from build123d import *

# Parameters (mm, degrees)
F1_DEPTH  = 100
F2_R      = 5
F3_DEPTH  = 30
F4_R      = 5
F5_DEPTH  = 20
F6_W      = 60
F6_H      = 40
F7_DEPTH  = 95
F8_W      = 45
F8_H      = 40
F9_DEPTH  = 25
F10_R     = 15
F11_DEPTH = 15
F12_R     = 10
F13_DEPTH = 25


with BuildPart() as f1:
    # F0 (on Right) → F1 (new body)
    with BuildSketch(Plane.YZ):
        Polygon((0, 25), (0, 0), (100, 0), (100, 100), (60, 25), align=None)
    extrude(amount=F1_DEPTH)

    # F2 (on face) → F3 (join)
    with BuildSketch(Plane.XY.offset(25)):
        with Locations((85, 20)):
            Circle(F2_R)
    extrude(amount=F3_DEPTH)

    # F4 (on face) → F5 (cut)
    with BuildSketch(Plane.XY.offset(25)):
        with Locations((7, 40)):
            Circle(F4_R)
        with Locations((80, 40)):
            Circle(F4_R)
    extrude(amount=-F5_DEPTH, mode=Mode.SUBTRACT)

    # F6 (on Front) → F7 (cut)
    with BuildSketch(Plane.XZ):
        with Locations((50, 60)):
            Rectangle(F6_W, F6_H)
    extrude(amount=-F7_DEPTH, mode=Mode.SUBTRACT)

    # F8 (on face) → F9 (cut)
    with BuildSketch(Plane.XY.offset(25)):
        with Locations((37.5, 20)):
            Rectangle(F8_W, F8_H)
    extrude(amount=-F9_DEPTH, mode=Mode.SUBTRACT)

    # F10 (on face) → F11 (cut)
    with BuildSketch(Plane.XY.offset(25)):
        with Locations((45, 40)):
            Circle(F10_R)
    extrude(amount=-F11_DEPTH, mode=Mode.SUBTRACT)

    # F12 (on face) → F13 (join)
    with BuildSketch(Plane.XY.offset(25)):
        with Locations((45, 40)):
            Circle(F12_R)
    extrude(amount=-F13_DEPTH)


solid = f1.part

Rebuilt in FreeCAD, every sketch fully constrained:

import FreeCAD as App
import Part
import Sketcher
from FreeCAD import Vector


def add_polygon(sketch, points):
    """Adds a closed chain of lines whose ends are joined by coincident constraints."""
    first, n = sketch.GeometryCount, len(points)
    for a, b in zip(points, points[1:] + points[:1]):
        sketch.addGeometry(Part.LineSegment(App.Vector(*a, 0), App.Vector(*b, 0)), False)
    for i in range(n):
        sketch.addConstraint(Sketcher.Constraint("Coincident", first + i, 2, first + (i + 1) % n, 1))

doc = App.newDocument("Part")
body = doc.addObject("PartDesign::Body", "Body")

sketch1 = doc.addObject("Sketcher::SketchObject", "Sketch")
body.addObject(sketch1)
sketch1.AttachmentSupport = (doc.YZ_Plane, [""])
sketch1.MapMode = "FlatFace"
add_polygon(sketch1, [(0, 25), (0, 0), (100, 0), (100, 100), (60, 25)])
sketch1.addConstraint([
    Sketcher.Constraint("Vertical", 0),
    Sketcher.Constraint("Horizontal", 1),
    Sketcher.Constraint("Vertical", 2),
    Sketcher.Constraint("Horizontal", 4),
    Sketcher.Constraint("Coincident", 0, 2, -1, 1),
    Sketcher.Constraint("Equal", 1, 2),
    Sketcher.Constraint("DistanceX", 1, 1, 1, 2, 100.0),
    Sketcher.Constraint("DistanceX", 4, 2, 4, 1, 60.0),
    Sketcher.Constraint("DistanceY", 0, 2, 0, 1, 25.0),
])
pad1 = doc.addObject("PartDesign::Pad", "Pad")
body.addObject(pad1)
pad1.Profile = sketch1
pad1.Length = 100

sketch2 = doc.addObject("Sketcher::SketchObject", "Sketch001")
body.addObject(sketch2)
sketch2.AttachmentSupport = (doc.XY_Plane, [""])
sketch2.MapMode = "FlatFace"
sketch2.AttachmentOffset = App.Placement(Vector(0, 0, 25), App.Rotation())
sketch2.addGeometry(Part.Circle(Vector(85, 20, 0), Vector(0, 0, 1), 5), False)
sketch2.addConstraint([
    Sketcher.Constraint("Diameter", 0, 10.0),
    Sketcher.Constraint("DistanceX", -1, 1, 0, 3, 85.0),
    Sketcher.Constraint("DistanceY", -1, 1, 0, 3, 20.0),
])
pad2 = doc.addObject("PartDesign::Pad", "Pad001")
body.addObject(pad2)
pad2.Profile = sketch2
pad2.Length = 30

sketch3 = doc.addObject("Sketcher::SketchObject", "Sketch002")
body.addObject(sketch3)
sketch3.AttachmentSupport = (doc.XY_Plane, [""])
sketch3.MapMode = "FlatFace"
sketch3.AttachmentOffset = App.Placement(Vector(0, 0, 25), App.Rotation())
sketch3.addGeometry([
    Part.Circle(Vector(7, 40, 0), Vector(0, 0, 1), 5),
    Part.Circle(Vector(80, 40, 0), Vector(0, 0, 1), 5),
], False)
sketch3.addConstraint([
    Sketcher.Constraint("Equal", 0, 1),
    Sketcher.Constraint("Horizontal", 0, 3, 1, 3),
    Sketcher.Constraint("Diameter", 0, 10.0),
    Sketcher.Constraint("DistanceX", -1, 1, 0, 3, 7.0),
    Sketcher.Constraint("DistanceY", -1, 1, 0, 3, 40.0),
    Sketcher.Constraint("DistanceX", -1, 1, 1, 3, 80.0),
])
pocket1 = doc.addObject("PartDesign::Pocket", "Pocket")
body.addObject(pocket1)
pocket1.Profile = sketch3
pocket1.Length = 20

sketch4 = doc.addObject("Sketcher::SketchObject", "Sketch003")
body.addObject(sketch4)
sketch4.AttachmentSupport = (doc.XZ_Plane, [""])
sketch4.MapMode = "FlatFace"
add_polygon(sketch4, [(20, 80), (20, 40), (80, 40), (80, 80)])
sketch4.addConstraint([
    Sketcher.Constraint("Vertical", 0),
    Sketcher.Constraint("Horizontal", 1),
    Sketcher.Constraint("Vertical", 2),
    Sketcher.Constraint("Horizontal", 3),
    Sketcher.Constraint("DistanceX", 1, 1, 1, 2, 60.0),
    Sketcher.Constraint("DistanceY", 0, 2, 0, 1, 40.0),
    Sketcher.Constraint("DistanceX", -1, 1, 0, 2, 20.0),
    Sketcher.Constraint("DistanceY", -1, 1, 0, 2, 40.0),
])
pocket2 = doc.addObject("PartDesign::Pocket", "Pocket001")
body.addObject(pocket2)
pocket2.Profile = sketch4
pocket2.Length = 95

sketch5 = doc.addObject("Sketcher::SketchObject", "Sketch004")
body.addObject(sketch5)
sketch5.AttachmentSupport = (doc.XY_Plane, [""])
sketch5.MapMode = "FlatFace"
sketch5.AttachmentOffset = App.Placement(Vector(0, 0, 25), App.Rotation())
add_polygon(sketch5, [(15, 40), (15, 0), (60, 0), (60, 40)])
sketch5.addConstraint([
    Sketcher.Constraint("Vertical", 0),
    Sketcher.Constraint("Horizontal", 1),
    Sketcher.Constraint("Vertical", 2),
    Sketcher.Constraint("Horizontal", 3),
    Sketcher.Constraint("PointOnObject", 0, 2, -1),
    Sketcher.Constraint("DistanceX", 1, 1, 1, 2, 45.0),
    Sketcher.Constraint("DistanceY", 0, 2, 0, 1, 40.0),
    Sketcher.Constraint("DistanceX", -1, 1, 0, 2, 15.0),
])
pocket3 = doc.addObject("PartDesign::Pocket", "Pocket002")
body.addObject(pocket3)
pocket3.Profile = sketch5
pocket3.Length = 25

sketch6 = doc.addObject("Sketcher::SketchObject", "Sketch005")
body.addObject(sketch6)
sketch6.AttachmentSupport = (doc.XY_Plane, [""])
sketch6.MapMode = "FlatFace"
sketch6.AttachmentOffset = App.Placement(Vector(0, 0, 25), App.Rotation())
sketch6.addGeometry(Part.Circle(Vector(45, 40, 0), Vector(0, 0, 1), 15), False)
sketch6.addConstraint([
    Sketcher.Constraint("Diameter", 0, 30.0),
    Sketcher.Constraint("DistanceX", -1, 1, 0, 3, 45.0),
    Sketcher.Constraint("DistanceY", -1, 1, 0, 3, 40.0),
])
pocket4 = doc.addObject("PartDesign::Pocket", "Pocket003")
body.addObject(pocket4)
pocket4.Profile = sketch6
pocket4.Length = 15

sketch7 = doc.addObject("Sketcher::SketchObject", "Sketch006")
body.addObject(sketch7)
sketch7.AttachmentSupport = (doc.XY_Plane, [""])
sketch7.MapMode = "FlatFace"
sketch7.AttachmentOffset = App.Placement(Vector(0, 0, 25), App.Rotation())
sketch7.addGeometry(Part.Circle(Vector(45, 40, 0), Vector(0, 0, 1), 10), False)
sketch7.addConstraint([
    Sketcher.Constraint("Diameter", 0, 20.0),
    Sketcher.Constraint("DistanceX", -1, 1, 0, 3, 45.0),
    Sketcher.Constraint("DistanceY", -1, 1, 0, 3, 40.0),
])
pad3 = doc.addObject("PartDesign::Pad", "Pad002")
body.addObject(pad3)
pad3.Profile = sketch7
pad3.Length = 25
pad3.Reversed = True

doc.recompute()
